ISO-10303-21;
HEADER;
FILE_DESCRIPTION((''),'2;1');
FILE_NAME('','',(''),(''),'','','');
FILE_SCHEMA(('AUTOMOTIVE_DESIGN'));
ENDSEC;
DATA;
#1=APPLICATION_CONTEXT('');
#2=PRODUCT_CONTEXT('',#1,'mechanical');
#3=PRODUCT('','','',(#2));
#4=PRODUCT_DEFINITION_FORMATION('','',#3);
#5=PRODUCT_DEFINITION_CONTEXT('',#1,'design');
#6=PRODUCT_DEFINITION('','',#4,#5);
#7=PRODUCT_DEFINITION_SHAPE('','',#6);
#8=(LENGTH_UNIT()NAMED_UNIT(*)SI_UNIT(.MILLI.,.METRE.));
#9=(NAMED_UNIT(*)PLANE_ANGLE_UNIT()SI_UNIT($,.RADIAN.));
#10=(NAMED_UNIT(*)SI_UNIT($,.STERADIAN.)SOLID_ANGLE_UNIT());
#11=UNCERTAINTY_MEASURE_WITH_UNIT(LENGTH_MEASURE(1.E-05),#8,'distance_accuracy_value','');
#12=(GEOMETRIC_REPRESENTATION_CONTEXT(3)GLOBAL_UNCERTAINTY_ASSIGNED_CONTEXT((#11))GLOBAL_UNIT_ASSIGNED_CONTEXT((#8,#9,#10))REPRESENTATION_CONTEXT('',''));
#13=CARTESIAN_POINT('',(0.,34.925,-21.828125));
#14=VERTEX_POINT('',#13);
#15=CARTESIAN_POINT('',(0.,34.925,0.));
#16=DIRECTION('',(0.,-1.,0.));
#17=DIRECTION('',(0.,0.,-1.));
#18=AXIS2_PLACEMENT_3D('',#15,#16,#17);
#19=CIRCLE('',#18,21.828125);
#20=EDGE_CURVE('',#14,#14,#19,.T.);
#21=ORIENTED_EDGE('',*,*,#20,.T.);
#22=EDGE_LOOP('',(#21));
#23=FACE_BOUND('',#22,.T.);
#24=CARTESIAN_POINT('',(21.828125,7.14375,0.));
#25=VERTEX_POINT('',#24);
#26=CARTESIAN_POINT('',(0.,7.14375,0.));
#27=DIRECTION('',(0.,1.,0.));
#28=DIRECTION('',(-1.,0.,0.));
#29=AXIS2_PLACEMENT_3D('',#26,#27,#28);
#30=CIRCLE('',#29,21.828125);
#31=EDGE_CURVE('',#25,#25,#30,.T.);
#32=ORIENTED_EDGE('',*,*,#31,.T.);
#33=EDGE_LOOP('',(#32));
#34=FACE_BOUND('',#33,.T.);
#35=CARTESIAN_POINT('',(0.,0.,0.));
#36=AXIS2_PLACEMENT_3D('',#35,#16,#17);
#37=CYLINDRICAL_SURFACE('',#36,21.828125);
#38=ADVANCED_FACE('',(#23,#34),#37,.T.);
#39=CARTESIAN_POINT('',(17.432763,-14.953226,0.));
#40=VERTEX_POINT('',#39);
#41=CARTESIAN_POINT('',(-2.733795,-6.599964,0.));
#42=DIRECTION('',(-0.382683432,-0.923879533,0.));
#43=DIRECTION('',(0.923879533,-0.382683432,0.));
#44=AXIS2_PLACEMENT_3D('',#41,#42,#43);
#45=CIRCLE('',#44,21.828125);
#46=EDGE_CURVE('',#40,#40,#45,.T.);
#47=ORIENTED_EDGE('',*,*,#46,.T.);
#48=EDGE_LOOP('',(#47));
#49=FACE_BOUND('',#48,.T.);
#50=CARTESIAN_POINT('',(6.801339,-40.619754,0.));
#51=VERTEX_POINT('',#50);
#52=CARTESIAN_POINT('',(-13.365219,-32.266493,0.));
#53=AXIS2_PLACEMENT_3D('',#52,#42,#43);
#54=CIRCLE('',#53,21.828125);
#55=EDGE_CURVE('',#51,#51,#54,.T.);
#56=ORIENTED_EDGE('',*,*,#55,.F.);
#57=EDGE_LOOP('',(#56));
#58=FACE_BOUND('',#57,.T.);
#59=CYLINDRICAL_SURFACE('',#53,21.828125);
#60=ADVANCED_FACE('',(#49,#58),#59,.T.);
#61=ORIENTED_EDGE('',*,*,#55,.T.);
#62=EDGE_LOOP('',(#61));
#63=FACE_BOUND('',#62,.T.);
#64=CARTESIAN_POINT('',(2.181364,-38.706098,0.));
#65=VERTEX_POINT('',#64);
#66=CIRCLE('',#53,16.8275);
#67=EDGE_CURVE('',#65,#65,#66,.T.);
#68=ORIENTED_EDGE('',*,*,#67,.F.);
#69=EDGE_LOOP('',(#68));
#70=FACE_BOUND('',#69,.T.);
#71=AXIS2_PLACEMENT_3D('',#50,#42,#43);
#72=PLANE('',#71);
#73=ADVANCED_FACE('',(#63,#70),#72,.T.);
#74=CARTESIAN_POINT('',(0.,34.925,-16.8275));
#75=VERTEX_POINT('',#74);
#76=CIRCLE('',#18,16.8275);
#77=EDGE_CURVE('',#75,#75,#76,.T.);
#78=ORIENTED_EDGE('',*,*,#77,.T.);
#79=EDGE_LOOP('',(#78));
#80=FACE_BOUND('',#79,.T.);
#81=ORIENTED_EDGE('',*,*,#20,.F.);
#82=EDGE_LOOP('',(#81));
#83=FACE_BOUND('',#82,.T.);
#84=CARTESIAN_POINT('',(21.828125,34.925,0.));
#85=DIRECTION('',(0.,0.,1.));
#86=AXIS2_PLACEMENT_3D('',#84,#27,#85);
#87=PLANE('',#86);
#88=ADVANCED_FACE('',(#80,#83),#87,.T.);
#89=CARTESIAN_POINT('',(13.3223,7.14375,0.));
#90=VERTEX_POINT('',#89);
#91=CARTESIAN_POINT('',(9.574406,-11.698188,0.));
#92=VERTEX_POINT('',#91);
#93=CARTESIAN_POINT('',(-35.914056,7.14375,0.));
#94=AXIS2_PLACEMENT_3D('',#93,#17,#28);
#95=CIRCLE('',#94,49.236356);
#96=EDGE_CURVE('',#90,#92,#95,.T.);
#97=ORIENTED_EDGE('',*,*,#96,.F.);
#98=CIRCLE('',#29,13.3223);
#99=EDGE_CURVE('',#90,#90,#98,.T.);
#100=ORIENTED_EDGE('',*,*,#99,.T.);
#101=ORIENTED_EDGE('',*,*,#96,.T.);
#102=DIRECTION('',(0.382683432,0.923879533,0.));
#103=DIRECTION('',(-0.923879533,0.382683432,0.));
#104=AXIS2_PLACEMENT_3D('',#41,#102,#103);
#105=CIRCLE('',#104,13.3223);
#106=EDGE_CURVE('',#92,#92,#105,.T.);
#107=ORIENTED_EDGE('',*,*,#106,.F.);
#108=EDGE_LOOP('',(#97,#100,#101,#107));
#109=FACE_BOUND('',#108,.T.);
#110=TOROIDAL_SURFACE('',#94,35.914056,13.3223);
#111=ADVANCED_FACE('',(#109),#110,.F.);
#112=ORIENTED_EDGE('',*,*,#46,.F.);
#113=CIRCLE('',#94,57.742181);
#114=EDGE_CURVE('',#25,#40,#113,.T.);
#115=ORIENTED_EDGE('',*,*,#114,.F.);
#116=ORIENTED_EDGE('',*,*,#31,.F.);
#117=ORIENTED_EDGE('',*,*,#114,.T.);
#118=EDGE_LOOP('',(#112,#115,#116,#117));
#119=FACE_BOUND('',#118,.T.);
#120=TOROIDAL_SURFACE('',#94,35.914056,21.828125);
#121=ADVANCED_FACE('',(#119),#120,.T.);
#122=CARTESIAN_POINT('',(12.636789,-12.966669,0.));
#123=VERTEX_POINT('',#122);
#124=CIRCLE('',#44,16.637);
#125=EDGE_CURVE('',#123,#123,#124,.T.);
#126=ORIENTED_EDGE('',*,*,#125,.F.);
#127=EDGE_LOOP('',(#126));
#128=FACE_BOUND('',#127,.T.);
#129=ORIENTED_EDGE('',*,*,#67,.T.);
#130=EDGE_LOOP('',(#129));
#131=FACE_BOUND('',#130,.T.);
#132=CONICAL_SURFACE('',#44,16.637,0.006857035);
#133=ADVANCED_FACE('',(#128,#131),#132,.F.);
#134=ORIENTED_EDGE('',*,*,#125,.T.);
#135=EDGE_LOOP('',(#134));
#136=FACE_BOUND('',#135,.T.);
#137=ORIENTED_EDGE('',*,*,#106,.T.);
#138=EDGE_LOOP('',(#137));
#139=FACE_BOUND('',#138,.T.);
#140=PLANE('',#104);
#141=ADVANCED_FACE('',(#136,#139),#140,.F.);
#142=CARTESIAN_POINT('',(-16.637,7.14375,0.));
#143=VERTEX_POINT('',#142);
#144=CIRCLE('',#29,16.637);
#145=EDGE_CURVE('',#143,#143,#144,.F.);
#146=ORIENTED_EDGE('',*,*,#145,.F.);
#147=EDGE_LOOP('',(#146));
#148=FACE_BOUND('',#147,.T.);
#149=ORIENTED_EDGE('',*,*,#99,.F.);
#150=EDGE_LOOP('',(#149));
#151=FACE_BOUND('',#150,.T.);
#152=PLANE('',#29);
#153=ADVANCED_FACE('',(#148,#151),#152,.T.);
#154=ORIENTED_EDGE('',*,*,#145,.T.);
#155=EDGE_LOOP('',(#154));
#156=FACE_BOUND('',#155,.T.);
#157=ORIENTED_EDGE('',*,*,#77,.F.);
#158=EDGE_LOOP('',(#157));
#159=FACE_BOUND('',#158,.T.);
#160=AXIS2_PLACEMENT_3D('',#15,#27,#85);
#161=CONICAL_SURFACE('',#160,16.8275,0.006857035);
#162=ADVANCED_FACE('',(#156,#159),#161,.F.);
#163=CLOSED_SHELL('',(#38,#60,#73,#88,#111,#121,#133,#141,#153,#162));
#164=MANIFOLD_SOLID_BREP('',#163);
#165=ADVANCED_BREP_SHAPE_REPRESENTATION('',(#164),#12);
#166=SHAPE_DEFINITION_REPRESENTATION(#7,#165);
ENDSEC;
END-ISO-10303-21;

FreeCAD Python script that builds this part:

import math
import FreeCAD as App
import Part
import Sketcher
from FreeCAD import Vector
Q = App.Units.Quantity


def add_polygon(sketch, points):
    """Adds a closed chain of lines whose ends are joined by coincident constraints."""
    first, n = sketch.GeometryCount, len(points)
    for a, b in zip(points, points[1:] + points[:1]):
        sketch.addGeometry(Part.LineSegment(App.Vector(*a, 0), App.Vector(*b, 0)), False)
    for i in range(n):
        sketch.addConstraint(Sketcher.Constraint("Coincident", first + i, 2, first + (i + 1) % n, 1))

doc = App.newDocument("Part")
body = doc.addObject("PartDesign::Body", "Body")

# Sketch on XY plane
sketch1 = doc.addObject("Sketcher::SketchObject", "Sketch")
body.addObject(sketch1)
sketch1.AttachmentSupport = (doc.XY_Plane, [""])
sketch1.MapMode = "FlatFace"
add_polygon(sketch1, [(7, -41), (17, -15), (13, -13), (2, -39)])  # lines 0-3
sketch1.addGeometry(Part.LineSegment(Vector(-13, -32, 0), Vector(-3, -7, 0)), True)  # axis
sketch1.addConstraint(Sketcher.Constraint("Perpendicular", 0, 1))
sketch1.addConstraint(Sketcher.Constraint("Parallel", 1, 3))
sketch1.addConstraint(Sketcher.Constraint("Perpendicular", 3, 4))
sketch1.addConstraint(Sketcher.Constraint("Equal", 0, 4))
sketch1.addConstraint(Sketcher.Constraint("Angle", 0, Q("67.5 deg")))
sketch1.addConstraint(Sketcher.Constraint("Distance", 0, Q("1.09375 in")))
sketch1.addConstraint(Sketcher.Constraint("DistanceY", 2, 2, -1, 1, Q("38.706098 mm")))
sketch1.addConstraint(Sketcher.Constraint("DistanceX", 2, 2, 0, 2, Q("15.251399 mm")))
sketch1.addConstraint(Sketcher.Constraint("DistanceX", -1, 1, 1, 2, Q("12.636789 mm")))
sketch1.addConstraint(Sketcher.Constraint("DistanceY", 1, 2, -1, 1, Q("12.966669 mm")))
sketch1.addConstraint(Sketcher.Constraint("DistanceX", 4, 1, -1, 1, Q("13.365219 mm")))
sketch1.addConstraint(Sketcher.Constraint("DistanceY", 3, 2, 4, 1, Q("8.353262 mm")))
revolution = doc.addObject("PartDesign::Revolution", "Revolution")
body.addObject(revolution)
revolution.Profile = sketch1
revolution.ReferenceAxis = (sketch1, ["Axis0"])
revolution.Angle = 360
body2 = doc.addObject("PartDesign::Body", "Body001")

# Sketch on XY plane
sketch2 = doc.addObject("Sketcher::SketchObject", "Sketch001")
body2.addObject(sketch2)
sketch2.AttachmentSupport = (doc.getObject("XY_Plane001"), [""])
sketch2.MapMode = "FlatFace"
add_polygon(sketch2, [(17, 35), (17, 7), (22, 7), (22, 35)])  # lines 0-3
sketch2.addConstraint(Sketcher.Constraint("Horizontal", 1))
sketch2.addConstraint(Sketcher.Constraint("Vertical", 2))
sketch2.addConstraint(Sketcher.Constraint("Horizontal", 3))
sketch2.addConstraint(Sketcher.Constraint("DistanceY", 2, 1, 2, 2, Q("1.09375 in")))
sketch2.addConstraint(Sketcher.Constraint("DistanceX", -1, 1, 0, 2, Q("0.655 in")))
sketch2.addConstraint(Sketcher.Constraint("DistanceY", -1, 1, 0, 2, Q("0.28125 in")))
sketch2.addConstraint(Sketcher.Constraint("DistanceX", -1, 1, 1, 2, Q("0.859375 in")))
sketch2.addConstraint(Sketcher.Constraint("DistanceX", -1, 1, 3, 2, Q("0.6625 in")))
revolution2 = doc.addObject("PartDesign::Revolution", "Revolution001")
body2.addObject(revolution2)
revolution2.Profile = sketch2
revolution2.ReferenceAxis = (sketch2, ["V_Axis"])
revolution2.Angle = 360
body.AllowCompound = True
doc.recompute()

boolean = doc.addObject("PartDesign::Boolean", "Boolean")
body.addObject(boolean)
boolean.Type = "Fuse"
boolean.addObjects([body2])

# Sketch on an angled plane
sketch3 = doc.addObject("Sketcher::SketchObject", "Sketch002")
body.addObject(sketch3)
sketch3.Placement = App.Placement(Vector(-2.733795, -6.599964, 0), App.Rotation(Vector(0, 0, -1), Vector(-0.923879533, 0.382683432, 0), Vector(0.382683432, 0.923879533, 0), "ZXY"))
sketch3.addGeometry(Part.Circle(Vector(0, 0, 0), Vector(0, 0, 1), 22), False)
sketch3.addGeometry(Part.Circle(Vector(0, 0, 0), Vector(0, 0, 1), 13), False)
sketch3.addConstraint(Sketcher.Constraint("Coincident", 0, 3, -1, 1))
sketch3.addConstraint(Sketcher.Constraint("Coincident", 1, 3, -1, 1))
sketch3.addConstraint(Sketcher.Constraint("Diameter", 0, Q("1.71875 in")))
sketch3.addConstraint(Sketcher.Constraint("Diameter", 1, Q("1.049 in")))

# Sketch on XY plane
sketch4 = doc.addObject("Sketcher::SketchObject", "Sketch003")
body.addObject(sketch4)
sketch4.AttachmentSupport = (doc.XY_Plane, [""])
sketch4.MapMode = "FlatFace"
sketch4.addGeometry(Part.ArcOfCircle(Part.Circle(Vector(-36, 7, 0), Vector(0, 0, 1), 36), math.radians(-23), math.radians(0)), False)
sketch4.addConstraint(Sketcher.Constraint("PointOnObject", 0, 2, -2))
sketch4.addConstraint(Sketcher.Constraint("DistanceY", -1, 1, 0, 3, Q("0.28125 in")))
sketch4.addConstraint(Sketcher.Constraint("DistanceY", -1, 1, 0, 2, Q("0.28125 in")))
sketch4.addConstraint(Sketcher.Constraint("Radius", 0, Q("35.914056 mm")))
sketch4.addConstraint(Sketcher.Constraint("DistanceX", 0, 3, 0, 1, Q("33.180262 mm")))
doc.recompute()

additivepipe = doc.addObject("PartDesign::AdditivePipe", "AdditivePipe")
body.addObject(additivepipe)
additivepipe.Profile = sketch3
additivepipe.Spine = (sketch4, ["Edge1"])

doc.recompute()
